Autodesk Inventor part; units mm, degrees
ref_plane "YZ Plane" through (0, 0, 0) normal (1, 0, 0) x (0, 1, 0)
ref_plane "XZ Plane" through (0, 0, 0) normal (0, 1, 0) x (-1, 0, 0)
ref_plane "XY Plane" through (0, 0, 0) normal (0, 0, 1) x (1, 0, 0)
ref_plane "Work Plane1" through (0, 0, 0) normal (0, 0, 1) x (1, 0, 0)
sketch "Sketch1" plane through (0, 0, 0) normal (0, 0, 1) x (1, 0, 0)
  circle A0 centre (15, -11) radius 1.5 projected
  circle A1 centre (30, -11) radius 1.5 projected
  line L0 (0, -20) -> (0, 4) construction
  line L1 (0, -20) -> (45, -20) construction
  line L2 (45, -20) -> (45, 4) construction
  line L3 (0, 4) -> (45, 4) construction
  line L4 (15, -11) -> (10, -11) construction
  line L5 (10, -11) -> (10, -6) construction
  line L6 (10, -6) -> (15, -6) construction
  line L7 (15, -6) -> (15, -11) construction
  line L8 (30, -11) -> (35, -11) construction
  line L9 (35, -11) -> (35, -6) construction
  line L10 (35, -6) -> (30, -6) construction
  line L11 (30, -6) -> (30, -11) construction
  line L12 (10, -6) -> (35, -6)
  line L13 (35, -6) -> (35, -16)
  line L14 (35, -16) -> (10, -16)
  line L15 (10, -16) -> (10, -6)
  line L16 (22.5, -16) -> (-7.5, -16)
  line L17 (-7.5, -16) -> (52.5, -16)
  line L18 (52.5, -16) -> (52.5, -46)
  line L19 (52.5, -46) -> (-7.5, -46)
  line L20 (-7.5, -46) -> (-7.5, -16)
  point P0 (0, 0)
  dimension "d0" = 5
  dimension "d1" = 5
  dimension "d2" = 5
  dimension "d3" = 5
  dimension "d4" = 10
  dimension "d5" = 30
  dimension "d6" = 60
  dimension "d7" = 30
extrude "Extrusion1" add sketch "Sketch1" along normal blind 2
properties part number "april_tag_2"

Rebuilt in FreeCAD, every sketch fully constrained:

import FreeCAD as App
import Part
import Sketcher

V = App.Vector

doc = App.newDocument("Part")
params = doc.addObject("Spreadsheet::Sheet", "Params")
for row, (alias, value) in enumerate([
    ("sketch1_width", "60 mm"),
    ("sketch1_height", "10 mm"),
    ("sketch1_height2", "30 mm"),
    ("sketch1_diameter", "3 mm"),
    ("pad1_length", "2 mm"),
], start=1):
    params.set(f"A{row}", alias)
    params.set(f"B{row}", "=" + value)
    params.setAlias(f"B{row}", alias)

body = doc.addObject("PartDesign::Body", "Body")

# Sketch on XY plane
sketch1 = body.newObject("Sketcher::SketchObject", "Sketch")
sketch1.AttachmentSupport = (doc.getObject("XY_Plane"), [""])
sketch1.MapMode = "FlatFace"
sketch1.addGeometry(Part.LineSegment(V(35, -6, 0), V(10, -6, 0)), False)
sketch1.addGeometry(Part.LineSegment(V(10, -6, 0), V(10, -16, 0)), False)
sketch1.addGeometry(Part.LineSegment(V(10, -16, 0), V(-7.5, -16, 0)), False)
sketch1.addGeometry(Part.LineSegment(V(-7.5, -16, 0), V(-7.5, -46, 0)), False)
sketch1.addGeometry(Part.LineSegment(V(-7.5, -46, 0), V(52.5, -46, 0)), False)
sketch1.addGeometry(Part.LineSegment(V(52.5, -46, 0), V(52.5, -16, 0)), False)
sketch1.addGeometry(Part.LineSegment(V(52.5, -16, 0), V(35, -16, 0)), False)
sketch1.addGeometry(Part.LineSegment(V(35, -16, 0), V(35, -6, 0)), False)
sketch1.addGeometry(Part.Circle(V(15, -11, 0), V(0, 0, 1), 1.5), False)
sketch1.addGeometry(Part.Circle(V(30, -11, 0), V(0, 0, 1), 1.5), False)
sketch1.addConstraint(Sketcher.Constraint("Coincident", 0, 2, 1, 1))
sketch1.addConstraint(Sketcher.Constraint("Coincident", 1, 2, 2, 1))
sketch1.addConstraint(Sketcher.Constraint("Coincident", 2, 2, 3, 1))
sketch1.addConstraint(Sketcher.Constraint("Coincident", 3, 2, 4, 1))
sketch1.addConstraint(Sketcher.Constraint("Coincident", 4, 2, 5, 1))
sketch1.addConstraint(Sketcher.Constraint("Coincident", 5, 2, 6, 1))
sketch1.addConstraint(Sketcher.Constraint("Coincident", 6, 2, 7, 1))
sketch1.addConstraint(Sketcher.Constraint("Coincident", 7, 2, 0, 1))
sketch1.addConstraint(Sketcher.Constraint("Horizontal", 0))
sketch1.addConstraint(Sketcher.Constraint("Vertical", 1))
sketch1.addConstraint(Sketcher.Constraint("Horizontal", 2))
sketch1.addConstraint(Sketcher.Constraint("Vertical", 3))
sketch1.addConstraint(Sketcher.Constraint("Horizontal", 4))
sketch1.addConstraint(Sketcher.Constraint("Vertical", 5))
sketch1.addConstraint(Sketcher.Constraint("Horizontal", 6))
sketch1.addConstraint(Sketcher.Constraint("Vertical", 7))
sketch1.addConstraint(Sketcher.Constraint("Equal", 8, 9))
sketch1.addConstraint(Sketcher.Constraint("Horizontal", 8, 3, 9, 3))
sketch1.addConstraint(Sketcher.Constraint("Horizontal", 2, 2, 5, 2))
sketch1.addConstraint(Sketcher.Constraint("Equal", 2, 6))
sketch1.addConstraint(Sketcher.Constraint("DistanceX", 4, 1, 4, 2, 60.0))
sketch1.addConstraint(Sketcher.Constraint("DistanceY", 1, 2, 1, 1, 10.0))
sketch1.addConstraint(Sketcher.Constraint("DistanceY", 3, 2, 3, 1, 30.0))
sketch1.addConstraint(Sketcher.Constraint("Diameter", 8, 3.0))
sketch1.addConstraint(Sketcher.Constraint("DistanceX", -1, 1, 9, 3, 30.0))
sketch1.addConstraint(Sketcher.Constraint("DistanceX", -1, 1, 0, 2, 10.0))
sketch1.addConstraint(Sketcher.Constraint("DistanceX", 0, 2, 8, 3, 5.0))
sketch1.addConstraint(Sketcher.Constraint("DistanceY", 8, 3, 0, 2, 5.0))
sketch1.addConstraint(Sketcher.Constraint("DistanceX", 9, 3, 6, 2, 5.0))
sketch1.addConstraint(Sketcher.Constraint("DistanceY", 8, 3, -1, 1, 11.0))
sketch1.setExpression("Constraints[20]", "Params.sketch1_width")
sketch1.setExpression("Constraints[21]", "Params.sketch1_height")
sketch1.setExpression("Constraints[22]", "Params.sketch1_height2")
sketch1.setExpression("Constraints[23]", "Params.sketch1_diameter")
pad1 = body.newObject("PartDesign::Pad", "Pad")
pad1.Profile = sketch1
pad1.setExpression("Length", "Params.pad1_length")

doc.recompute()
